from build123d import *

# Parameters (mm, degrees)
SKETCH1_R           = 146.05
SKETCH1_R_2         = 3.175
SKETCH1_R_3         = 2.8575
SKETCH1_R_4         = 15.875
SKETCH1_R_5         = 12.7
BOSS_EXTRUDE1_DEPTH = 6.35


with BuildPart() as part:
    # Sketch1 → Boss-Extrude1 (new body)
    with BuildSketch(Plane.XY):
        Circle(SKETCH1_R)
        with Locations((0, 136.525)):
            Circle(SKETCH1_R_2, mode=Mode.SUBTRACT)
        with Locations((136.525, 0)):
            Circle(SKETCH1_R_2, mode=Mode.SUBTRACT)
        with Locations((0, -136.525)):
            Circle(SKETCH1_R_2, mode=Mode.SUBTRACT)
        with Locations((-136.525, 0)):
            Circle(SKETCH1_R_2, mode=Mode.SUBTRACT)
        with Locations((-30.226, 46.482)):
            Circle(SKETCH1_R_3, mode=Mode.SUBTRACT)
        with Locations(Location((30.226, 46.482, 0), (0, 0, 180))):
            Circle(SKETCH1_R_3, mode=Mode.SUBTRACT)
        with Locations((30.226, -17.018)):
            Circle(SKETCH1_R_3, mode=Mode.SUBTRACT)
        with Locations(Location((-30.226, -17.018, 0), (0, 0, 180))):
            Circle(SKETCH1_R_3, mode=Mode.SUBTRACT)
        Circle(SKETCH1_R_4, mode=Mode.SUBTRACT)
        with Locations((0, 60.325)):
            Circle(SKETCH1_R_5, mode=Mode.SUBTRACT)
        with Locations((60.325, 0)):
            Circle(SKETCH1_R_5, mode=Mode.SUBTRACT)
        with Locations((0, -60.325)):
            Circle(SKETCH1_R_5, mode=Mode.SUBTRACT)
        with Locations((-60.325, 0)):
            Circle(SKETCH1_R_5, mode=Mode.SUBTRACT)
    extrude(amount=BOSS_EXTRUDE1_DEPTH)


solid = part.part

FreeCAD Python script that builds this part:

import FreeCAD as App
import Part
import Sketcher

V = App.Vector
Q = App.Units.Quantity

doc = App.newDocument("Part")
body = doc.addObject("PartDesign::Body", "Body")

sketch1 = body.newObject("Sketcher::SketchObject", "Sketch")
sketch1.AttachmentSupport = (doc.getObject("XY_Plane"), [""])
sketch1.MapMode = "FlatFace"
sketch1.addGeometry(Part.Circle(V(0, 0, 0), V(0, 0, 1), 146.1), False)
sketch1.addGeometry(Part.Circle(V(-30.2, -17, 0), V(0, 0, 1), 2.9), False)
sketch1.addGeometry(Part.Circle(V(0, -136.5, 0), V(0, 0, 1), 3.2), False)
sketch1.addGeometry(Part.Circle(V(0, -60.3, 0), V(0, 0, 1), 12.7), False)
sketch1.addGeometry(Part.Circle(V(30.2, -17, 0), V(0, 0, 1), 2.9), False)
sketch1.addGeometry(Part.Circle(V(-136.5, 0, 0), V(0, 0, 1), 3.2), False)
sketch1.addGeometry(Part.Circle(V(-60.3, 0, 0), V(0, 0, 1), 12.7), False)
sketch1.addGeometry(Part.Circle(V(-30.2, 46.5, 0), V(0, 0, 1), 2.9), False)
sketch1.addGeometry(Part.Circle(V(0, 0, 0), V(0, 0, 1), 15.9), False)
sketch1.addGeometry(Part.Circle(V(60.3, 0, 0), V(0, 0, 1), 12.7), False)
sketch1.addGeometry(Part.Circle(V(30.2, 46.5, 0), V(0, 0, 1), 2.9), False)
sketch1.addGeometry(Part.Circle(V(0, 60.3, 0), V(0, 0, 1), 12.7), False)
sketch1.addGeometry(Part.Circle(V(136.5, 0, 0), V(0, 0, 1), 3.2), False)
sketch1.addGeometry(Part.Circle(V(0, 136.5, 0), V(0, 0, 1), 3.2), False)
sketch1.addConstraint(Sketcher.Constraint("Coincident", 0, 3, -1, 1))
sketch1.addConstraint(Sketcher.Constraint("Coincident", 8, 3, -1, 1))
sketch1.addConstraint(Sketcher.Constraint("Equal", 1, 4))
sketch1.addConstraint(Sketcher.Constraint("Equal", 2, 5))
sketch1.addConstraint(Sketcher.Constraint("Equal", 3, 6))
sketch1.addConstraint(Sketcher.Constraint("Equal", 4, 7))
sketch1.addConstraint(Sketcher.Constraint("Equal", 6, 9))
sketch1.addConstraint(Sketcher.Constraint("Equal", 7, 10))
sketch1.addConstraint(Sketcher.Constraint("Equal", 9, 11))
sketch1.addConstraint(Sketcher.Constraint("Equal", 5, 12))
sketch1.addConstraint(Sketcher.Constraint("Equal", 12, 13))
sketch1.addConstraint(Sketcher.Constraint("Symmetric", 6, 3, 9, 3, -1, 1))
sketch1.addConstraint(Sketcher.Constraint("Symmetric", 3, 3, 11, 3, -1, 1))
sketch1.addConstraint(Sketcher.Constraint("Symmetric", 5, 3, 12, 3, -1, 1))
sketch1.addConstraint(Sketcher.Constraint("Symmetric", 2, 3, 13, 3, -1, 1))
sketch1.addConstraint(Sketcher.Constraint("Symmetric", 1, 3, 4, 3, -2))
sketch1.addConstraint(Sketcher.Constraint("Symmetric", 7, 3, 10, 3, -2))
sketch1.addConstraint(Sketcher.Constraint("PointOnObject", 2, 3, -2))
sketch1.addConstraint(Sketcher.Constraint("PointOnObject", 3, 3, -2))
sketch1.addConstraint(Sketcher.Constraint("PointOnObject", 5, 3, -1))
sketch1.addConstraint(Sketcher.Constraint("PointOnObject", 6, 3, -1))
sketch1.addConstraint(Sketcher.Constraint("Vertical", 1, 3, 7, 3))
sketch1.addConstraint(Sketcher.Constraint("Diameter", 3, Q("1 in")))
sketch1.addConstraint(Sketcher.Constraint("Diameter", 0, Q("11.5 in")))
sketch1.addConstraint(Sketcher.Constraint("Diameter", 2, Q("0.25 in")))
sketch1.addConstraint(Sketcher.Constraint("Diameter", 8, Q("1.25 in")))
sketch1.addConstraint(Sketcher.Constraint("Diameter", 1, Q("0.225 in")))
sketch1.addConstraint(Sketcher.Constraint("DistanceY", 2, 3, 3, 3, Q("3 in")))
sketch1.addConstraint(Sketcher.Constraint("DistanceX", 5, 3, 6, 3, Q("3 in")))
sketch1.addConstraint(Sketcher.Constraint("DistanceY", 1, 3, 7, 3, Q("2.5 in")))
sketch1.addConstraint(Sketcher.Constraint("DistanceX", 1, 3, -1, 1, Q("1.19 in")))
sketch1.addConstraint(Sketcher.Constraint("DistanceY", 1, 3, -1, 1, Q("0.67 in")))
sketch1.addConstraint(Sketcher.Constraint("DistanceY", 2, 3, -1, 1, Q("5.375 in")))
sketch1.addConstraint(Sketcher.Constraint("DistanceX", 5, 3, -1, 1, Q("5.375 in")))
pad1 = body.newObject("PartDesign::Pad", "Pad")
pad1.Profile = sketch1
pad1.Length = Q("0.25 in")

doc.recompute()
